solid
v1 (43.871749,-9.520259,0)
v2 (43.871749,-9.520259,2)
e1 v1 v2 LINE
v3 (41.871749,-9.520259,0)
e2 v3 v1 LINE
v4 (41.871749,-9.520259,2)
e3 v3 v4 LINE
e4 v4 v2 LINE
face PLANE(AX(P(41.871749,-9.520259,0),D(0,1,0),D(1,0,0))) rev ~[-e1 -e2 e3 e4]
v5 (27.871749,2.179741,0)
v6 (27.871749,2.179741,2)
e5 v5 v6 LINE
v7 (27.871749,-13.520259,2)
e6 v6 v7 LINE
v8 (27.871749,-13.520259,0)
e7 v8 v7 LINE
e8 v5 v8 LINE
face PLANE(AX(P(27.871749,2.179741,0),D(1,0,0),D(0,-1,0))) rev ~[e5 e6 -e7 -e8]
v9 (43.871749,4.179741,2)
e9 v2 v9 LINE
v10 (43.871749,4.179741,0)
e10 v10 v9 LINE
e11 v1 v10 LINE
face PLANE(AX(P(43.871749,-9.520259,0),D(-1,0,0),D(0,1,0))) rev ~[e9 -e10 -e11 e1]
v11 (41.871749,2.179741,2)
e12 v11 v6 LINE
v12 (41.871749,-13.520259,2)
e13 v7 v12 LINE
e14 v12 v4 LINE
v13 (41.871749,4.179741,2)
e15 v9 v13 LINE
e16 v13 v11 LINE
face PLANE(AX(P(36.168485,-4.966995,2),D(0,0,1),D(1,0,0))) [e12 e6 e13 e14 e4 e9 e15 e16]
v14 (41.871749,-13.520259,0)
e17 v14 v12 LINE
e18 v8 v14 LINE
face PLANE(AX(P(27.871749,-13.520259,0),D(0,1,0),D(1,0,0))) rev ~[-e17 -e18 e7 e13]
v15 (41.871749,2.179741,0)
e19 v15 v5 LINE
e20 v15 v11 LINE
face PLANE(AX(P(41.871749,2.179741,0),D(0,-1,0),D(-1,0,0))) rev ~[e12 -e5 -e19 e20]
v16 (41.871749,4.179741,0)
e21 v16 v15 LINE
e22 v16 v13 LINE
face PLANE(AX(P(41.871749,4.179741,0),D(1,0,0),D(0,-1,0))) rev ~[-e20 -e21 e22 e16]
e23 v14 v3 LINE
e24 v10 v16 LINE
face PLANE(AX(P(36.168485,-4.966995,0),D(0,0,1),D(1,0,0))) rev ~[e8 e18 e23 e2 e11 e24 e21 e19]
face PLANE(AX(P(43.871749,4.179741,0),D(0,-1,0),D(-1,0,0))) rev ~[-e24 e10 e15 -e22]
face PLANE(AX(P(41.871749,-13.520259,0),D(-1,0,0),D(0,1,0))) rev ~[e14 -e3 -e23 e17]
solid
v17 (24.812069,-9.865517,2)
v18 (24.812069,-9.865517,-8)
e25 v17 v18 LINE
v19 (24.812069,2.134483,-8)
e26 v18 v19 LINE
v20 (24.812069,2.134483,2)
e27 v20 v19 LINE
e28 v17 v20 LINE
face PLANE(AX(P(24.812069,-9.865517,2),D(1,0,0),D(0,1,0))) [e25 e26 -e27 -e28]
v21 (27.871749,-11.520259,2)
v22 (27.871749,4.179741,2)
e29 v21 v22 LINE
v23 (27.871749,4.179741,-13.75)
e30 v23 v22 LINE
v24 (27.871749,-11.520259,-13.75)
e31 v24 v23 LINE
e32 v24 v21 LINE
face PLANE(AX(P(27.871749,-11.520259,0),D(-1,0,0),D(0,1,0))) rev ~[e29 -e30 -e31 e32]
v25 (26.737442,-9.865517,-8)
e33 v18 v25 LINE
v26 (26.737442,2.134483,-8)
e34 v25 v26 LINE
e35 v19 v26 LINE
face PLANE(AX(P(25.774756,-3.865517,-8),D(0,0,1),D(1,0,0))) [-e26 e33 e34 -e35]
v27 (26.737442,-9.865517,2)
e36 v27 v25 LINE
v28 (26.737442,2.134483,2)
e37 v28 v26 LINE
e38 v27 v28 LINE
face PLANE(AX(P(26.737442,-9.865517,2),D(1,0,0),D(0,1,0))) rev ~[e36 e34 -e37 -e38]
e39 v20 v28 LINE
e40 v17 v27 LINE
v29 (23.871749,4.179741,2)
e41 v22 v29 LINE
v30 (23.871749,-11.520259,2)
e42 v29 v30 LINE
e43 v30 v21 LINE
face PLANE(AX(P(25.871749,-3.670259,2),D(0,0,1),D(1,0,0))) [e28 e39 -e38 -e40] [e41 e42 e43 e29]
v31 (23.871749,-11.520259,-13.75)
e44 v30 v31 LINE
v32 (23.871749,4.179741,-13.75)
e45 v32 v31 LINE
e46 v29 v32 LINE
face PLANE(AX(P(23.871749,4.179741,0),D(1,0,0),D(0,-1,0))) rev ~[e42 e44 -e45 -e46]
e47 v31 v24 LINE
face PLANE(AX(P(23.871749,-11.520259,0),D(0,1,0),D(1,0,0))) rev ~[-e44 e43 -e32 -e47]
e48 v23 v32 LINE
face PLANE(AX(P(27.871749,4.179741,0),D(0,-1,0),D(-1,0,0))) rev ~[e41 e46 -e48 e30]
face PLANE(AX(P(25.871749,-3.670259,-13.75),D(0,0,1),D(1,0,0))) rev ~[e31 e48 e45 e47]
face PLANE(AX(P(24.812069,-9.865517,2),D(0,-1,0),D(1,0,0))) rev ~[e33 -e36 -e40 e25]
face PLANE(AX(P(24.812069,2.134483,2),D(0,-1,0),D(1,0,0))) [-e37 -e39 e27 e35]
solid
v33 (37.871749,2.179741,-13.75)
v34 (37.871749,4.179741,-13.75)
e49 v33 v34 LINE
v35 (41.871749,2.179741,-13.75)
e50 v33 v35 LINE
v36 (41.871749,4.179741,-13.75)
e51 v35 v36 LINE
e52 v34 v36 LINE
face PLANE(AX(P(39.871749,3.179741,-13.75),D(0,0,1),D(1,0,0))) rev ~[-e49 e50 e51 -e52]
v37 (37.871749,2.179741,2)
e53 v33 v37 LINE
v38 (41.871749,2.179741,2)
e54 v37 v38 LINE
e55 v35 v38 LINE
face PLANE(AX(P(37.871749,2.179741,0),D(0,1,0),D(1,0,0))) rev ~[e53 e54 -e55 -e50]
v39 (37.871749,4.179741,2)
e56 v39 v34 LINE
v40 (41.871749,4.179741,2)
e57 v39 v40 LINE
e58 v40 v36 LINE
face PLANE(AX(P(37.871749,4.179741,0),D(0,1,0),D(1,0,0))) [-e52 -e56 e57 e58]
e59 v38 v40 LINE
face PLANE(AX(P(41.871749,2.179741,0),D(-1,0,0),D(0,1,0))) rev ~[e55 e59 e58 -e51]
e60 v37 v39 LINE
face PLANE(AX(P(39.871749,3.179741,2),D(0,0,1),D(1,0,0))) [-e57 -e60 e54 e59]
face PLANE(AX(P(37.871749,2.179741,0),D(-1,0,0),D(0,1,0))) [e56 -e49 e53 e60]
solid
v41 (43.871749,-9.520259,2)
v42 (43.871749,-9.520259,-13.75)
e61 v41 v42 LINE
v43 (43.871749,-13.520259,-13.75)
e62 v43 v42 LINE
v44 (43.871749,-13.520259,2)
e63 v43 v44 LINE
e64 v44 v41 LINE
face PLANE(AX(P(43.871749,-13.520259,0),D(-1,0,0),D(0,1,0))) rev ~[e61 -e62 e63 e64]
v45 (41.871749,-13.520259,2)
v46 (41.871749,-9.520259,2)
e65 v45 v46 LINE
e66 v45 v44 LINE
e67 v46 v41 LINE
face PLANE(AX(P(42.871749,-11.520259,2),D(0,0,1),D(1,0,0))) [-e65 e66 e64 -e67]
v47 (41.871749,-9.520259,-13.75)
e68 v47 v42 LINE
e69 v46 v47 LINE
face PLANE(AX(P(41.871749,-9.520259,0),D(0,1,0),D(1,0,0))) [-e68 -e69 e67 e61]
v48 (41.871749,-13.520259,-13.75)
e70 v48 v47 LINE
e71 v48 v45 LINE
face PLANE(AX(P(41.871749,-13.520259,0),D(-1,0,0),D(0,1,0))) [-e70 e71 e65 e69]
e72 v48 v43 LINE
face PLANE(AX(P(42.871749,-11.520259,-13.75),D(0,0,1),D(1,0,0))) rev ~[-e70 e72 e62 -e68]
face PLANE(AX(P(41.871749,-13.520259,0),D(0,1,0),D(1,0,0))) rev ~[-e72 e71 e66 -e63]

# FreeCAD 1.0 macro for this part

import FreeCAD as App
import Part
import Sketcher

V = App.Vector

doc = App.newDocument("Part")
body = doc.addObject("PartDesign::Body", "Body")

sketch1 = doc.addObject("Sketcher::SketchObject", "Sketch")
body.addObject(sketch1)
sketch1.AttachmentSupport = (doc.XY_Plane, [""])
sketch1.MapMode = "FlatFace"
sketch1.addGeometry(Part.LineSegment(V(41.9, -9.5, 0), V(41.9, -13.5, 0)), False)
sketch1.addGeometry(Part.LineSegment(V(41.9, -13.5, 0), V(43.9, -13.5, 0)), False)
sketch1.addGeometry(Part.LineSegment(V(43.9, -13.5, 0), V(43.9, -9.5, 0)), False)
sketch1.addGeometry(Part.LineSegment(V(43.9, -9.5, 0), V(41.9, -9.5, 0)), False)
sketch1.addConstraint(Sketcher.Constraint("Coincident", 0, 2, 1, 1))
sketch1.addConstraint(Sketcher.Constraint("Coincident", 1, 2, 2, 1))
sketch1.addConstraint(Sketcher.Constraint("Coincident", 2, 2, 3, 1))
sketch1.addConstraint(Sketcher.Constraint("Coincident", 3, 2, 0, 1))
sketch1.addConstraint(Sketcher.Constraint("Vertical", 0))
sketch1.addConstraint(Sketcher.Constraint("Horizontal", 1))
sketch1.addConstraint(Sketcher.Constraint("Vertical", 2))
sketch1.addConstraint(Sketcher.Constraint("Horizontal", 3))
sketch1.addConstraint(Sketcher.Constraint("DistanceX", 1, 1, 1, 2, 2.0))
sketch1.addConstraint(Sketcher.Constraint("DistanceY", 0, 2, 0, 1, 4.0))
sketch1.addConstraint(Sketcher.Constraint("DistanceX", -1, 1, 0, 2, 41.871749))
sketch1.addConstraint(Sketcher.Constraint("DistanceY", 0, 2, -1, 1, 13.520259))
pad1 = doc.addObject("PartDesign::Pad", "Pad")
body.addObject(pad1)
pad1.Profile = sketch1
pad1.Type = "TwoLengths"
pad1.Length = 13.75
pad1.Length2 = 2
pad1.Reversed = True
body2 = doc.addObject("PartDesign::Body", "Body001")

sketch2 = doc.addObject("Sketcher::SketchObject", "Sketch001")
body2.addObject(sketch2)
sketch2.AttachmentSupport = (doc.getObject("XY_Plane001"), [""])
sketch2.MapMode = "FlatFace"
sketch2.addGeometry(Part.LineSegment(V(27.9, -13.5, 0), V(41.9, -13.5, 0)), False)
sketch2.addGeometry(Part.LineSegment(V(41.9, -13.5, 0), V(41.9, -9.5, 0)), False)
sketch2.addGeometry(Part.LineSegment(V(41.9, -9.5, 0), V(43.9, -9.5, 0)), False)
sketch2.addGeometry(Part.LineSegment(V(43.9, -9.5, 0), V(43.9, 4.2, 0)), False)
sketch2.addGeometry(Part.LineSegment(V(43.9, 4.2, 0), V(41.9, 4.2, 0)), False)
sketch2.addGeometry(Part.LineSegment(V(41.9, 4.2, 0), V(41.9, 2.2, 0)), False)
sketch2.addGeometry(Part.LineSegment(V(41.9, 2.2, 0), V(27.9, 2.2, 0)), False)
sketch2.addGeometry(Part.LineSegment(V(27.9, 2.2, 0), V(27.9, -13.5, 0)), False)
sketch2.addConstraint(Sketcher.Constraint("Coincident", 0, 2, 1, 1))
sketch2.addConstraint(Sketcher.Constraint("Coincident", 1, 2, 2, 1))
sketch2.addConstraint(Sketcher.Constraint("Coincident", 2, 2, 3, 1))
sketch2.addConstraint(Sketcher.Constraint("Coincident", 3, 2, 4, 1))
sketch2.addConstraint(Sketcher.Constraint("Coincident", 4, 2, 5, 1))
sketch2.addConstraint(Sketcher.Constraint("Coincident", 5, 2, 6, 1))
sketch2.addConstraint(Sketcher.Constraint("Coincident", 6, 2, 7, 1))
sketch2.addConstraint(Sketcher.Constraint("Coincident", 7, 2, 0, 1))
sketch2.addConstraint(Sketcher.Constraint("Horizontal", 0))
sketch2.addConstraint(Sketcher.Constraint("Vertical", 1))
sketch2.addConstraint(Sketcher.Constraint("Horizontal", 2))
sketch2.addConstraint(Sketcher.Constraint("Vertical", 3))
sketch2.addConstraint(Sketcher.Constraint("Horizontal", 4))
sketch2.addConstraint(Sketcher.Constraint("Vertical", 5))
sketch2.addConstraint(Sketcher.Constraint("Horizontal", 6))
sketch2.addConstraint(Sketcher.Constraint("Vertical", 7))
sketch2.addConstraint(Sketcher.Constraint("Vertical", 1, 2, 4, 2))
sketch2.addConstraint(Sketcher.Constraint("Equal", 4, 5))
sketch2.addConstraint(Sketcher.Constraint("DistanceX", 0, 1, 0, 2, 14.0))
sketch2.addConstraint(Sketcher.Constraint("DistanceX", 2, 1, 2, 2, 2.0))
sketch2.addConstraint(Sketcher.Constraint("DistanceY", 1, 1, 1, 2, 4.0))
sketch2.addConstraint(Sketcher.Constraint("DistanceY", 3, 1, 3, 2, 13.7))
sketch2.addConstraint(Sketcher.Constraint("DistanceX", -1, 1, 0, 2, 41.871749))
sketch2.addConstraint(Sketcher.Constraint("DistanceY", 0, 2, -1, 1, 13.520259))
pad2 = doc.addObject("PartDesign::Pad", "Pad001")
body2.addObject(pad2)
pad2.Profile = sketch2
pad2.Length = 2
body3 = doc.addObject("PartDesign::Body", "Body002")

sketch3 = doc.addObject("Sketcher::SketchObject", "Sketch002")
body3.addObject(sketch3)
sketch3.AttachmentSupport = (doc.getObject("XY_Plane002"), [""])
sketch3.MapMode = "FlatFace"
sketch3.addGeometry(Part.LineSegment(V(37.9, 4.2, 0), V(37.9, 2.2, 0)), False)
sketch3.addGeometry(Part.LineSegment(V(37.9, 2.2, 0), V(41.9, 2.2, 0)), False)
sketch3.addGeometry(Part.LineSegment(V(41.9, 2.2, 0), V(41.9, 4.2, 0)), False)
sketch3.addGeometry(Part.LineSegment(V(41.9, 4.2, 0), V(37.9, 4.2, 0)), False)
sketch3.addConstraint(Sketcher.Constraint("Coincident", 0, 2, 1, 1))
sketch3.addConstraint(Sketcher.Constraint("Coincident", 1, 2, 2, 1))
sketch3.addConstraint(Sketcher.Constraint("Coincident", 2, 2, 3, 1))
sketch3.addConstraint(Sketcher.Constraint("Coincident", 3, 2, 0, 1))
sketch3.addConstraint(Sketcher.Constraint("Vertical", 0))
sketch3.addConstraint(Sketcher.Constraint("Horizontal", 1))
sketch3.addConstraint(Sketcher.Constraint("Vertical", 2))
sketch3.addConstraint(Sketcher.Constraint("Horizontal", 3))
sketch3.addConstraint(Sketcher.Constraint("DistanceX", 1, 1, 1, 2, 4.0))
sketch3.addConstraint(Sketcher.Constraint("DistanceY", 0, 2, 0, 1, 2.0))
sketch3.addConstraint(Sketcher.Constraint("DistanceX", -1, 1, 0, 2, 37.871749))
sketch3.addConstraint(Sketcher.Constraint("DistanceY", -1, 1, 0, 2, 2.179741))
pad3 = doc.addObject("PartDesign::Pad", "Pad002")
body3.addObject(pad3)
pad3.Profile = sketch3
pad3.Type = "TwoLengths"
pad3.Length = 13.75
pad3.Length2 = 2
pad3.Reversed = True
body4 = doc.addObject("PartDesign::Body", "Body003")

sketch4 = doc.addObject("Sketcher::SketchObject", "Sketch003")
body4.addObject(sketch4)
sketch4.AttachmentSupport = (doc.getObject("XY_Plane003"), [""])
sketch4.MapMode = "FlatFace"
sketch4.addGeometry(Part.LineSegment(V(23.9, -11.5, 0), V(27.9, -11.5, 0)), False)
sketch4.addGeometry(Part.LineSegment(V(27.9, -11.5, 0), V(27.9, 4.2, 0)), False)
sketch4.addGeometry(Part.LineSegment(V(27.9, 4.2, 0), V(23.9, 4.2, 0)), False)
sketch4.addGeometry(Part.LineSegment(V(23.9, 4.2, 0), V(23.9, -11.5, 0)), False)
sketch4.addConstraint(Sketcher.Constraint("Coincident", 0, 2, 1, 1))
sketch4.addConstraint(Sketcher.Constraint("Coincident", 1, 2, 2, 1))
sketch4.addConstraint(Sketcher.Constraint("Coincident", 2, 2, 3, 1))
sketch4.addConstraint(Sketcher.Constraint("Coincident", 3, 2, 0, 1))
sketch4.addConstraint(Sketcher.Constraint("Horizontal", 0))
sketch4.addConstraint(Sketcher.Constraint("Vertical", 1))
sketch4.addConstraint(Sketcher.Constraint("Horizontal", 2))
sketch4.addConstraint(Sketcher.Constraint("Vertical", 3))
sketch4.addConstraint(Sketcher.Constraint("DistanceX", 0, 1, 0, 2, 4.0))
sketch4.addConstraint(Sketcher.Constraint("DistanceY", 1, 1, 1, 2, 15.7))
sketch4.addConstraint(Sketcher.Constraint("DistanceX", -1, 1, 0, 2, 27.871749))
sketch4.addConstraint(Sketcher.Constraint("DistanceY", 0, 2, -1, 1, 11.520259))
pad4 = doc.addObject("PartDesign::Pad", "Pad003")
body4.addObject(pad4)
pad4.Profile = sketch4
pad4.Type = "TwoLengths"
pad4.Length = 13.75
pad4.Length2 = 2
pad4.Reversed = True

sketch5 = doc.addObject("Sketcher::SketchObject", "Sketch004")
body4.addObject(sketch5)
sketch5.AttachmentSupport = (doc.getObject("XY_Plane003"), [""])
sketch5.MapMode = "FlatFace"
sketch5.AttachmentOffset = App.Placement(V(0, 0, 2), App.Rotation())
sketch5.addGeometry(Part.LineSegment(V(24.8, 2.1, 0), V(24.8, -9.9, 0)), False)
sketch5.addGeometry(Part.LineSegment(V(24.8, -9.9, 0), V(26.7, -9.9, 0)), False)
sketch5.addGeometry(Part.LineSegment(V(26.7, -9.9, 0), V(26.7, 2.1, 0)), False)
sketch5.addGeometry(Part.LineSegment(V(26.7, 2.1, 0), V(24.8, 2.1, 0)), False)
sketch5.addConstraint(Sketcher.Constraint("Coincident", 0, 2, 1, 1))
sketch5.addConstraint(Sketcher.Constraint("Coincident", 1, 2, 2, 1))
sketch5.addConstraint(Sketcher.Constraint("Coincident", 2, 2, 3, 1))
sketch5.addConstraint(Sketcher.Constraint("Coincident", 3, 2, 0, 1))
sketch5.addConstraint(Sketcher.Constraint("Vertical", 0))
sketch5.addConstraint(Sketcher.Constraint("Horizontal", 1))
sketch5.addConstraint(Sketcher.Constraint("Vertical", 2))
sketch5.addConstraint(Sketcher.Constraint("Horizontal", 3))
sketch5.addConstraint(Sketcher.Constraint("DistanceY", 0, 2, 0, 1, 12.0))
sketch5.addConstraint(Sketcher.Constraint("DistanceX", 1, 1, 1, 2, 1.925373))
sketch5.addConstraint(Sketcher.Constraint("DistanceX", -1, 1, 0, 2, 24.812069))
sketch5.addConstraint(Sketcher.Constraint("DistanceY", 0, 2, -1, 1, 9.865517))
pocket1 = doc.addObject("PartDesign::Pocket", "Pocket")
body4.addObject(pocket1)
pocket1.Profile = sketch5
pocket1.Length = 10

doc.recompute()
